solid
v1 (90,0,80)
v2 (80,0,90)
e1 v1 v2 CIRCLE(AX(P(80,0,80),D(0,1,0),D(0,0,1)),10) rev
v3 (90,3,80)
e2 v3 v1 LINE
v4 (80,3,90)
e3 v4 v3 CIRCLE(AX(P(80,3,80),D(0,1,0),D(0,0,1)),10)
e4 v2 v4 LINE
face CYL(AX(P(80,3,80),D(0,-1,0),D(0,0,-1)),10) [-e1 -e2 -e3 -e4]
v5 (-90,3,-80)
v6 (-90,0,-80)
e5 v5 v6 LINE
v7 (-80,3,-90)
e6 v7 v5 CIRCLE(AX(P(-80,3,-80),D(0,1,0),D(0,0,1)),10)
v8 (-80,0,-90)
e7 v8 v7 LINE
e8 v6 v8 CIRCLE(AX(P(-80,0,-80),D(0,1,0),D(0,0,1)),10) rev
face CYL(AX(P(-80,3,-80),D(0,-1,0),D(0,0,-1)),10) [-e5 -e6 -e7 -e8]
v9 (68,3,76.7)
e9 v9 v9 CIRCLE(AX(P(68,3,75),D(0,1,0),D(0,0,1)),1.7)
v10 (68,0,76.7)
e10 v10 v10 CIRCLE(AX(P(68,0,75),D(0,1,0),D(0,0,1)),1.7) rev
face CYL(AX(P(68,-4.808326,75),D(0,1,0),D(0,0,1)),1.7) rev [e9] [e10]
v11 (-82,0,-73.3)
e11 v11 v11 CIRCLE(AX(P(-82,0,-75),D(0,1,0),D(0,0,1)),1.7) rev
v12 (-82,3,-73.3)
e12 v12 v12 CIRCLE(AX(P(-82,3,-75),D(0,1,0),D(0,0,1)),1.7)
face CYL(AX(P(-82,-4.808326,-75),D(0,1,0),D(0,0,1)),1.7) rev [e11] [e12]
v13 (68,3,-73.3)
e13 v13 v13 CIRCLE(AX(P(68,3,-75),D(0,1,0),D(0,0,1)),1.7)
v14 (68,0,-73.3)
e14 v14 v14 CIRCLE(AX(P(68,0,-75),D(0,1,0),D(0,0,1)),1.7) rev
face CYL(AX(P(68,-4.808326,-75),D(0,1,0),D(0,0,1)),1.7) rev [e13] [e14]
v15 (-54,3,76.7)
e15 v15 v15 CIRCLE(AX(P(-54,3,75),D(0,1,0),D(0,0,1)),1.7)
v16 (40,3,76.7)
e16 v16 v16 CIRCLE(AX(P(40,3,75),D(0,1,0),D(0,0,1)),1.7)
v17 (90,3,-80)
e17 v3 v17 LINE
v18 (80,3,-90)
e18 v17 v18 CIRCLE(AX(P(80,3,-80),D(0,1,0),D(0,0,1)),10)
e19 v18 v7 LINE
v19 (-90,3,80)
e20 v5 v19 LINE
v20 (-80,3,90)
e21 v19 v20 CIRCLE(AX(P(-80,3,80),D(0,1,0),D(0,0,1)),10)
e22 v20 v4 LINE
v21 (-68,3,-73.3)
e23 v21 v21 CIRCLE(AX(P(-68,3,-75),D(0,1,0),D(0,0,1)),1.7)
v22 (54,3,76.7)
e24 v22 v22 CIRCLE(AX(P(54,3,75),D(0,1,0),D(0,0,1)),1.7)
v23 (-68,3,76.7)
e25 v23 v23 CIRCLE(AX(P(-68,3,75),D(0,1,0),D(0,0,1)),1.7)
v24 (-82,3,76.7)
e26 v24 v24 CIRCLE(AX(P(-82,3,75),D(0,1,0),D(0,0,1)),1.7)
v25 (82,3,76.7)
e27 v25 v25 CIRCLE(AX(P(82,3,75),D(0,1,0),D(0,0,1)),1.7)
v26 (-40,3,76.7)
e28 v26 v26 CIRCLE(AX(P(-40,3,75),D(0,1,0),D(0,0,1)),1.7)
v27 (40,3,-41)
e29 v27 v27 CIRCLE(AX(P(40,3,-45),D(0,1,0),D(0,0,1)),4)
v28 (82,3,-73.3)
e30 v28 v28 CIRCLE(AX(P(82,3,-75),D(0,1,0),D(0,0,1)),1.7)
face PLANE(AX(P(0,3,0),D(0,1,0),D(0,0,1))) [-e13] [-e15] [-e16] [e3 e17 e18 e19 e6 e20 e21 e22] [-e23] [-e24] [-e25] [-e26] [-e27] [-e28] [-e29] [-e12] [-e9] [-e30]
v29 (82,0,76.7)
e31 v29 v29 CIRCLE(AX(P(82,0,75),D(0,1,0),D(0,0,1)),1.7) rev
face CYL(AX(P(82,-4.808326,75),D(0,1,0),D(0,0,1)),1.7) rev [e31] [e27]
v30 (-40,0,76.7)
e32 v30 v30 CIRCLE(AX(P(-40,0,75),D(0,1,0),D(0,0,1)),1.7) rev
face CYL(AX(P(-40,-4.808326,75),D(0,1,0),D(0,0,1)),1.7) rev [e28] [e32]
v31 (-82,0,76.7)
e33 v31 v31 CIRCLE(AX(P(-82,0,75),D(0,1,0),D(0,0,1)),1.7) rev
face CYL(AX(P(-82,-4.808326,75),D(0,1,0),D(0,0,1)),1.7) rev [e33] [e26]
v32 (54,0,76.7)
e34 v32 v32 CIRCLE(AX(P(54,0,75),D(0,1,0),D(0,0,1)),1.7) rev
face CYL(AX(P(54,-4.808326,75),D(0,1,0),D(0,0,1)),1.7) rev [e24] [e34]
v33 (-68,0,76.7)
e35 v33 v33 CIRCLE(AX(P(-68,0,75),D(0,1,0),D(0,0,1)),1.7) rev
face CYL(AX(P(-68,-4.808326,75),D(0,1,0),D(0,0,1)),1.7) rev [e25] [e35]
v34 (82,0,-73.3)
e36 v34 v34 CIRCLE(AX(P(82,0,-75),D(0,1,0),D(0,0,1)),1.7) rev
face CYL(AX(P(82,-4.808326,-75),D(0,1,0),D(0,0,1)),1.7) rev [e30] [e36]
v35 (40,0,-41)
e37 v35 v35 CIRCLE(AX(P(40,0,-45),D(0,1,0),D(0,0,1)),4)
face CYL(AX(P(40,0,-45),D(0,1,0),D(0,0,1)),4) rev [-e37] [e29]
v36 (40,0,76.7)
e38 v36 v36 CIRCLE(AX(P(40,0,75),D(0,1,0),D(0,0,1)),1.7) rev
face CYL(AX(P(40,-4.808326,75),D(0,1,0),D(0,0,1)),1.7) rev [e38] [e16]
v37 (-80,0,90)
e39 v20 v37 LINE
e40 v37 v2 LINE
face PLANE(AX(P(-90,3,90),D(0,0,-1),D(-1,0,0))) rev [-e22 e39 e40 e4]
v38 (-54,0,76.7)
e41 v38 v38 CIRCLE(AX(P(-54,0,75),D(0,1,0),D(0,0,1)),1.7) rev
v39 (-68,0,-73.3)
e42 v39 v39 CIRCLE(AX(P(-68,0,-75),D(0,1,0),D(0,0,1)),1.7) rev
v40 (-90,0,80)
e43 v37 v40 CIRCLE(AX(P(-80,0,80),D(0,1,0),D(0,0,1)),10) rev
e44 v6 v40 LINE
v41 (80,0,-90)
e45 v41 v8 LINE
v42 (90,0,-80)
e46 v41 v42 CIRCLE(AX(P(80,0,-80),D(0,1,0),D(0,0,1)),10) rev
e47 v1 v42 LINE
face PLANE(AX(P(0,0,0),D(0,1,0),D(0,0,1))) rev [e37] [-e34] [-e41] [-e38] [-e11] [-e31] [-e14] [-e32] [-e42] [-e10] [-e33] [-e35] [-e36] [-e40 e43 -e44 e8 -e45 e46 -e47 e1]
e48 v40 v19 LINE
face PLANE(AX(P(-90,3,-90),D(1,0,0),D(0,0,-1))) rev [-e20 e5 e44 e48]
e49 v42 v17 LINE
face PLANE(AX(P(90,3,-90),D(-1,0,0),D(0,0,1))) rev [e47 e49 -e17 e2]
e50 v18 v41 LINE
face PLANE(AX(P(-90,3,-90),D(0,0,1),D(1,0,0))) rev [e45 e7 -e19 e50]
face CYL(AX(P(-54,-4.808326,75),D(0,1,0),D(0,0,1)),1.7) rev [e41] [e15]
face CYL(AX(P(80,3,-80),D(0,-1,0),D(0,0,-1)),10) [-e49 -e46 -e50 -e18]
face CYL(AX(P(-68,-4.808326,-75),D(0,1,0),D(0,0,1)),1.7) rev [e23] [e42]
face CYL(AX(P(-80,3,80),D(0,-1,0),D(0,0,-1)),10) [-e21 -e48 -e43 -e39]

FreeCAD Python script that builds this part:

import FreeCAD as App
import Part
import Sketcher
Q = App.Units.Quantity


def edges_at(feature, points):
    """Names of the edges that pass closest to the given points."""
    edges = feature.Shape.Edges
    near = lambda p: min(range(len(edges)), key=lambda i: edges[i].distToShape(Part.Vertex(*p))[0])
    return sorted({f"Edge{near(p) + 1}" for p in points})

doc = App.newDocument("Part")
body = doc.addObject("PartDesign::Body", "Body")

# Sketch on XZ plane
sketch1 = body.newObject("Sketcher::SketchObject", "Sketch")
sketch1.AttachmentSupport = (doc.getObject("XZ_Plane"), [""])
sketch1.MapMode = "FlatFace"
sketch1.addGeometry([
    Part.LineSegment(App.Vector(-90, -90, 0), App.Vector(-90, 90, 0)),
    Part.LineSegment(App.Vector(-90, 90, 0), App.Vector(90, 90, 0)),
    Part.LineSegment(App.Vector(90, 90, 0), App.Vector(90, -90, 0)),
    Part.LineSegment(App.Vector(90, -90, 0), App.Vector(-90, -90, 0)),
], False)
sketch1.addConstraint([
    Sketcher.Constraint("Coincident", 0, 2, 1, 1),
    Sketcher.Constraint("Coincident", 1, 2, 2, 1),
    Sketcher.Constraint("Coincident", 2, 2, 3, 1),
    Sketcher.Constraint("Coincident", 3, 2, 0, 1),
    Sketcher.Constraint("Vertical", 0),
    Sketcher.Constraint("Horizontal", 1),
    Sketcher.Constraint("Vertical", 2),
    Sketcher.Constraint("Horizontal", 3),
    Sketcher.Constraint("Symmetric", 0, 2, 2, 2, -1, 1),
    Sketcher.Constraint("Equal", 3, 0),
    Sketcher.Constraint("DistanceX", 1, 1, 1, 2, Q("180 mm")),
])
pad1 = body.newObject("PartDesign::Pad", "Pad")
pad1.Profile = sketch1
pad1.Length = 3
pad1.Reversed = True
doc.recompute()

fillet = body.newObject("PartDesign::Fillet", "Fillet")
fillet.Base = (pad1, edges_at(pad1, [
    (90, 1.5, 90),
    (-90, 1.5, 90),
    (-90, 1.5, -90),
    (90, 1.5, -90),
]))
fillet.Radius = 10

# Sketch on XZ plane
sketch2 = body.newObject("Sketcher::SketchObject", "Sketch001")
sketch2.AttachmentSupport = (doc.getObject("XZ_Plane"), [""])
sketch2.MapMode = "FlatFace"
sketch2.AttachmentOffset = App.Placement(App.Vector(0, 0, -3), App.Rotation())
sketch2.addGeometry([
    Part.Circle(App.Vector(-82, -75, 0), App.Vector(0, 0, 1), 1.7),  # 0
    Part.Circle(App.Vector(-68, -75, 0), App.Vector(0, 0, 1), 1.7),  # 1
    Part.Circle(App.Vector(68, -75, 0), App.Vector(0, 0, 1), 1.7),  # 2
    Part.Circle(App.Vector(82, -75, 0), App.Vector(0, 0, 1), 1.7),  # 3
    Part.Circle(App.Vector(-82, 75, 0), App.Vector(0, 0, 1), 1.7),  # 4
    Part.Circle(App.Vector(-68, 75, 0), App.Vector(0, 0, 1), 1.7),  # 5
    Part.Circle(App.Vector(68, 75, 0), App.Vector(0, 0, 1), 1.7),  # 6
    Part.Circle(App.Vector(82, 75, 0), App.Vector(0, 0, 1), 1.7),  # 7
    Part.Circle(App.Vector(-54, 75, 0), App.Vector(0, 0, 1), 1.7),  # 8
    Part.Circle(App.Vector(54, 75, 0), App.Vector(0, 0, 1), 1.7),  # 9
    Part.Circle(App.Vector(-40, 75, 0), App.Vector(0, 0, 1), 1.7),  # 10
    Part.Circle(App.Vector(40, 75, 0), App.Vector(0, 0, 1), 1.7),  # 11
], False)
sketch2.addConstraint([
    Sketcher.Constraint("Equal", 0, 1),
    Sketcher.Constraint("Equal", 1, 2),
    Sketcher.Constraint("Equal", 2, 3),
    Sketcher.Constraint("Equal", 3, 4),
    Sketcher.Constraint("Equal", 4, 5),
    Sketcher.Constraint("Equal", 5, 6),
    Sketcher.Constraint("Equal", 6, 7),
    Sketcher.Constraint("Equal", 7, 8),
    Sketcher.Constraint("Equal", 8, 9),
    Sketcher.Constraint("Equal", 9, 10),
    Sketcher.Constraint("Equal", 10, 11),
    Sketcher.Constraint("Symmetric", 3, 3, 4, 3, -1, 1),
    Sketcher.Constraint("Symmetric", 2, 3, 5, 3, -1, 1),
    Sketcher.Constraint("Symmetric", 1, 3, 6, 3, -1, 1),
    Sketcher.Constraint("Symmetric", 0, 3, 7, 3, -1, 1),
    Sketcher.Constraint("Symmetric", 1, 3, 2, 3, -2),
    Sketcher.Constraint("Symmetric", 0, 3, 3, 3, -2),
    Sketcher.Constraint("Symmetric", 8, 3, 9, 3, -2),
    Sketcher.Constraint("Symmetric", 10, 3, 11, 3, -2),
    Sketcher.Constraint("Horizontal", 0, 3, 1, 3),
    Sketcher.Constraint("Horizontal", 7, 3, 8, 3),
    Sketcher.Constraint("Horizontal", 9, 3, 10, 3),
    Sketcher.Constraint("Diameter", 0, Q("3.4 mm")),
    Sketcher.Constraint("DistanceX", 0, 3, -1, 1, Q("82 mm")),
    Sketcher.Constraint("DistanceY", 0, 3, -1, 1, Q("75 mm")),
    Sketcher.Constraint("DistanceX", 1, 3, -1, 1, Q("68 mm")),
    Sketcher.Constraint("DistanceX", 8, 3, -1, 1, Q("54 mm")),
    Sketcher.Constraint("DistanceX", 10, 3, -1, 1, Q("40 mm")),
])
pocket1 = body.newObject("PartDesign::Pocket", "Pocket")
pocket1.Profile = sketch2
pocket1.Length = 3
pocket1.Reversed = True

# Sketch on XZ plane
sketch3 = body.newObject("Sketcher::SketchObject", "Sketch002")
sketch3.AttachmentSupport = (doc.getObject("XZ_Plane"), [""])
sketch3.MapMode = "FlatFace"
sketch3.AttachmentOffset = App.Placement(App.Vector(0, 0, -3), App.Rotation())
sketch3.addGeometry(Part.Circle(App.Vector(40, -45, 0), App.Vector(0, 0, 1), 4), False)
sketch3.addConstraint([
    Sketcher.Constraint("Diameter", 0, Q("8 mm")),
    Sketcher.Constraint("DistanceX", -1, 1, 0, 3, Q("40 mm")),
    Sketcher.Constraint("DistanceY", 0, 3, -1, 1, Q("45 mm")),
])
pocket2 = body.newObject("PartDesign::Pocket", "Pocket001")
pocket2.Profile = sketch3
pocket2.Type = "ThroughAll"
pocket2.Reversed = True

doc.recompute()
